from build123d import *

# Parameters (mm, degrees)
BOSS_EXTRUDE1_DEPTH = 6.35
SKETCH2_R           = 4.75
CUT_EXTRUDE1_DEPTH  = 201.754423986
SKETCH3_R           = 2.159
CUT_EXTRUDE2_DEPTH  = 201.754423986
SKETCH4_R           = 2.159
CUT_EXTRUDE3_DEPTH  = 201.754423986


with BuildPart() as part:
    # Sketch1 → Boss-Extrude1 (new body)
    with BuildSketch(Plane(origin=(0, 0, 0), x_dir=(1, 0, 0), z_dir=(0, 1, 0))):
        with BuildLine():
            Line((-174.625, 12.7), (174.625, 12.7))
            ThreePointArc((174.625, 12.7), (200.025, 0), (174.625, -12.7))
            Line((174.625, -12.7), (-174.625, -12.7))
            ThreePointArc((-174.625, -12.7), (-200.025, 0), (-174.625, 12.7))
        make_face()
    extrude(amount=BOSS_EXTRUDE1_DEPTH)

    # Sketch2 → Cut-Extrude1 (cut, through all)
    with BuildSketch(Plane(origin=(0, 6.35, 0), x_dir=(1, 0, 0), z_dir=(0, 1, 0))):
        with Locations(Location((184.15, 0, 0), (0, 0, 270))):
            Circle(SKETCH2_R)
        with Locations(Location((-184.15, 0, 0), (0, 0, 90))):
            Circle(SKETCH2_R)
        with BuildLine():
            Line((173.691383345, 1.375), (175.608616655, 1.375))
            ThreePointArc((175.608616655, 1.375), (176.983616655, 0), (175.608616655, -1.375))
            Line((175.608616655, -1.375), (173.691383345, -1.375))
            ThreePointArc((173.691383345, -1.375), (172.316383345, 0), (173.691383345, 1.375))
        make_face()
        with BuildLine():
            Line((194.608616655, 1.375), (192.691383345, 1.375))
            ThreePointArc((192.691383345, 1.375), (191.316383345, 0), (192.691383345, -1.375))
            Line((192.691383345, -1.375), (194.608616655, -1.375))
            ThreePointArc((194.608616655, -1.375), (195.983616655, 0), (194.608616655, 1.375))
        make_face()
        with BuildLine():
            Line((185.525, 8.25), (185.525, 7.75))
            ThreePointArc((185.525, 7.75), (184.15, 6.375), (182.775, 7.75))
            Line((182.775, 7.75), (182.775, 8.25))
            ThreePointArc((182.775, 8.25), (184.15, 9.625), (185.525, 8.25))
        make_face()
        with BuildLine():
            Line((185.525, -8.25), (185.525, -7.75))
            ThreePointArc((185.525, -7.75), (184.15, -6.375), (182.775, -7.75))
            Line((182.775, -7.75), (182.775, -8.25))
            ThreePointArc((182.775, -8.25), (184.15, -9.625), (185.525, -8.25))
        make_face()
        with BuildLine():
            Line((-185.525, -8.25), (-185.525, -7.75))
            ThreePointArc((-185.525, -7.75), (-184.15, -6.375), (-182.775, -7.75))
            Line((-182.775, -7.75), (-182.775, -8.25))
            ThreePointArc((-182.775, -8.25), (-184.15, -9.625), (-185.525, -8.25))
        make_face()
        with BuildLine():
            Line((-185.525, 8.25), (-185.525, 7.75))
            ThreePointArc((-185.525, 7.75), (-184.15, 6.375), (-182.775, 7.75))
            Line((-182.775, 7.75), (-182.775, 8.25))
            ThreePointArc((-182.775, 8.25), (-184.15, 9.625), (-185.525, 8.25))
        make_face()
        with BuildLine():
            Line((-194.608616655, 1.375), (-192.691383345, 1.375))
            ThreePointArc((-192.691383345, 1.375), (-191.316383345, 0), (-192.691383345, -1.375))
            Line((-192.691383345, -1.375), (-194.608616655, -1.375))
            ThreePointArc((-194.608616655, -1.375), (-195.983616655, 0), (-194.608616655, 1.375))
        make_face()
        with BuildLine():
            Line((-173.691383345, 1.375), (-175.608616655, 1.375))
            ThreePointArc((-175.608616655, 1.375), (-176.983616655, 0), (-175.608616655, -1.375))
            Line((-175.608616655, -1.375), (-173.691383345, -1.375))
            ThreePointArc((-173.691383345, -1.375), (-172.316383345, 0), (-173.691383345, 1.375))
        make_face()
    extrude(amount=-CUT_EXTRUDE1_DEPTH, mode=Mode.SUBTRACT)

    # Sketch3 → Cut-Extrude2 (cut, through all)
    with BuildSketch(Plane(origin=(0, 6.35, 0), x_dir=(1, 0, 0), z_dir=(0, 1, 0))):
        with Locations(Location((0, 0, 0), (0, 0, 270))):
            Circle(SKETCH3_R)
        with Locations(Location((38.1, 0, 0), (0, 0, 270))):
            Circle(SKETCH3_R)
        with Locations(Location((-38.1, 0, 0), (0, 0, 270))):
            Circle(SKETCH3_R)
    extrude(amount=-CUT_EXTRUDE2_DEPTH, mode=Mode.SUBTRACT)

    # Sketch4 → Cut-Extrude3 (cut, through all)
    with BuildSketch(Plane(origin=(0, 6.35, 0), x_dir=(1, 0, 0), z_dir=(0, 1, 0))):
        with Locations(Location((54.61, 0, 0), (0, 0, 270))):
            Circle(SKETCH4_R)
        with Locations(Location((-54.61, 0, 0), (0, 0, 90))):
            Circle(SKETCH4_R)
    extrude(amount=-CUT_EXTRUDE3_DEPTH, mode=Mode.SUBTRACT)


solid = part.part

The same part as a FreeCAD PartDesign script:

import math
import FreeCAD as App
import Part
import Sketcher
from FreeCAD import Vector
Q = App.Units.Quantity

doc = App.newDocument("Part")
params = doc.addObject("Spreadsheet::Sheet", "Params")
for row, (alias, value) in enumerate([
    ("sketch1_radius", "0.625 in"),
    ("sketch1_width", "13.75 in"),
    ("pad1_length", "0.25 in"),
    ("sketch3_diameter", "0.17 in"),
    ("sketch4_diameter", "0.17 in"),
], start=1):
    params.set(f"A{row}", alias)
    params.set(f"B{row}", "=" + value)
    params.setAlias(f"B{row}", alias)

body = doc.addObject("PartDesign::Body", "Body")

# Sketch on XZ plane
sketch1 = body.newObject("Sketcher::SketchObject", "Sketch")
sketch1.AttachmentSupport = (doc.getObject("XZ_Plane"), [""])
sketch1.MapMode = "FlatFace"
sketch1.addGeometry([
    Part.LineSegment(Vector(175, -13, 0), Vector(-175, -13, 0)),
    Part.ArcOfCircle(Part.Circle(Vector(-184, 0, 0), Vector(0, 0, 1), 16), math.radians(53), math.radians(307)),
    Part.LineSegment(Vector(-175, 13, 0), Vector(175, 13, 0)),
    Part.ArcOfCircle(Part.Circle(Vector(184, 0, 0), Vector(0, 0, 1), 16), math.radians(-127), math.radians(127)),
], False)
sketch1.addConstraint([
    Sketcher.Constraint("Coincident", 0, 2, 1, 2),
    Sketcher.Constraint("Coincident", 1, 1, 2, 1),
    Sketcher.Constraint("Coincident", 2, 2, 3, 2),
    Sketcher.Constraint("Coincident", 3, 1, 0, 1),
    Sketcher.Constraint("Horizontal", 0),
    Sketcher.Constraint("Horizontal", 2),
    Sketcher.Constraint("Equal", 1, 3),
    Sketcher.Constraint("Symmetric", 1, 3, 3, 3, -1, 1),
    Sketcher.Constraint("Symmetric", 0, 2, 1, 1, -1),
    Sketcher.Constraint("Radius", 1, Q("0.625 in")),
    Sketcher.Constraint("DistanceY", 0, 2, 1, 1, Q("1 in")),
    Sketcher.Constraint("DistanceX", 0, 2, 0, 1, Q("13.75 in")),
])
sketch1.setExpression("Constraints[9]", "Params.sketch1_radius")
sketch1.setExpression("Constraints[11]", "Params.sketch1_width")
pad1 = body.newObject("PartDesign::Pad", "Pad")
pad1.Profile = sketch1
pad1.setExpression("Length", "Params.pad1_length")
pad1.Reversed = True

# Sketch on XZ plane
sketch2 = body.newObject("Sketcher::SketchObject", "Sketch001")
sketch2.AttachmentSupport = (doc.getObject("XZ_Plane"), [""])
sketch2.MapMode = "FlatFace"
sketch2.AttachmentOffset = App.Placement(Vector(0, 0, -0.25 * 25.4), App.Rotation())
sketch2.addGeometry([
    Part.Circle(Vector(184.2, 0, 0), Vector(0, 0, 1), 4.8),  # 0
    Part.Circle(Vector(-184.2, 0, 0), Vector(0, 0, 1), 4.8),  # 1
    Part.LineSegment(Vector(175.6, -1.4, 0), Vector(173.7, -1.4, 0)),  # 2
    Part.ArcOfCircle(Part.Circle(Vector(173.7, 0, 0), Vector(0, 0, 1), 1.4), math.radians(90), math.radians(270)),  # 3
    Part.LineSegment(Vector(173.7, 1.4, 0), Vector(175.6, 1.4, 0)),  # 4
    Part.ArcOfCircle(Part.Circle(Vector(175.6, 0, 0), Vector(0, 0, 1), 1.4), math.radians(-90), math.radians(90)),  # 5
    Part.LineSegment(Vector(194.6, -1.4, 0), Vector(192.7, -1.4, 0)),  # 6
    Part.ArcOfCircle(Part.Circle(Vector(192.7, 0, 0), Vector(0, 0, 1), 1.4), math.radians(90), math.radians(270)),  # 7
    Part.LineSegment(Vector(192.7, 1.4, 0), Vector(194.6, 1.4, 0)),  # 8
    Part.ArcOfCircle(Part.Circle(Vector(194.6, 0, 0), Vector(0, 0, 1), 1.4), math.radians(-90), math.radians(90)),  # 9
    Part.LineSegment(Vector(185.5, -7.8, 0), Vector(185.5, -8.2, 0)),  # 10
    Part.ArcOfCircle(Part.Circle(Vector(184.2, -8.2, 0), Vector(0, 0, 1), 1.4), math.radians(180), math.radians(360)),  # 11
    Part.LineSegment(Vector(182.8, -8.2, 0), Vector(182.8, -7.8, 0)),  # 12
    Part.ArcOfCircle(Part.Circle(Vector(184.2, -7.8, 0), Vector(0, 0, 1), 1.4), math.radians(0), math.radians(180)),  # 13
    Part.LineSegment(Vector(185.5, 8.2, 0), Vector(185.5, 7.8, 0)),  # 14
    Part.ArcOfCircle(Part.Circle(Vector(184.2, 7.8, 0), Vector(0, 0, 1), 1.4), math.radians(180), math.radians(360)),  # 15
    Part.LineSegment(Vector(182.8, 7.8, 0), Vector(182.8, 8.2, 0)),  # 16
    Part.ArcOfCircle(Part.Circle(Vector(184.2, 8.2, 0), Vector(0, 0, 1), 1.4), math.radians(0), math.radians(180)),  # 17
    Part.LineSegment(Vector(-185.5, 7.8, 0), Vector(-185.5, 8.2, 0)),  # 18
    Part.ArcOfCircle(Part.Circle(Vector(-184.2, 8.2, 0), Vector(0, 0, 1), 1.4), math.radians(0), math.radians(180)),  # 19
    Part.LineSegment(Vector(-182.8, 8.2, 0), Vector(-182.8, 7.8, 0)),  # 20
    Part.ArcOfCircle(Part.Circle(Vector(-184.2, 7.8, 0), Vector(0, 0, 1), 1.4), math.radians(180), math.radians(360)),  # 21
    Part.LineSegment(Vector(-185.5, -8.2, 0), Vector(-185.5, -7.8, 0)),  # 22
    Part.ArcOfCircle(Part.Circle(Vector(-184.2, -7.8, 0), Vector(0, 0, 1), 1.4), math.radians(0), math.radians(180)),  # 23
    Part.LineSegment(Vector(-182.8, -7.8, 0), Vector(-182.8, -8.2, 0)),  # 24
    Part.ArcOfCircle(Part.Circle(Vector(-184.2, -8.2, 0), Vector(0, 0, 1), 1.4), math.radians(180), math.radians(360)),  # 25
    Part.LineSegment(Vector(-192.7, -1.4, 0), Vector(-194.6, -1.4, 0)),  # 26
    Part.ArcOfCircle(Part.Circle(Vector(-194.6, 0, 0), Vector(0, 0, 1), 1.4), math.radians(90), math.radians(270)),  # 27
    Part.LineSegment(Vector(-194.6, 1.4, 0), Vector(-192.7, 1.4, 0)),  # 28
    Part.ArcOfCircle(Part.Circle(Vector(-192.7, 0, 0), Vector(0, 0, 1), 1.4), math.radians(-90), math.radians(90)),  # 29
    Part.LineSegment(Vector(-173.7, -1.4, 0), Vector(-175.6, -1.4, 0)),  # 30
    Part.ArcOfCircle(Part.Circle(Vector(-175.6, 0, 0), Vector(0, 0, 1), 1.4), math.radians(90), math.radians(270)),  # 31
    Part.LineSegment(Vector(-175.6, 1.4, 0), Vector(-173.7, 1.4, 0)),  # 32
    Part.ArcOfCircle(Part.Circle(Vector(-173.7, 0, 0), Vector(0, 0, 1), 1.4), math.radians(-90), math.radians(90)),  # 33
], False)
sketch2.addConstraint([
    Sketcher.Constraint("Tangent", 2, 2, 3, 2),
    Sketcher.Constraint("Tangent", 3, 1, 4, 1),
    Sketcher.Constraint("Tangent", 4, 2, 5, 2),
    Sketcher.Constraint("Tangent", 5, 1, 2, 1),
    Sketcher.Constraint("Tangent", 6, 2, 7, 2),
    Sketcher.Constraint("Tangent", 7, 1, 8, 1),
    Sketcher.Constraint("Tangent", 8, 2, 9, 2),
    Sketcher.Constraint("Tangent", 9, 1, 6, 1),
    Sketcher.Constraint("Tangent", 10, 2, 11, 2),
    Sketcher.Constraint("Tangent", 11, 1, 12, 1),
    Sketcher.Constraint("Tangent", 12, 2, 13, 2),
    Sketcher.Constraint("Tangent", 13, 1, 10, 1),
    Sketcher.Constraint("Tangent", 14, 2, 15, 2),
    Sketcher.Constraint("Tangent", 15, 1, 16, 1),
    Sketcher.Constraint("Tangent", 16, 2, 17, 2),
    Sketcher.Constraint("Tangent", 17, 1, 14, 1),
    Sketcher.Constraint("Tangent", 18, 2, 19, 2),
    Sketcher.Constraint("Tangent", 19, 1, 20, 1),
    Sketcher.Constraint("Tangent", 20, 2, 21, 2),
    Sketcher.Constraint("Tangent", 21, 1, 18, 1),
    Sketcher.Constraint("Tangent", 22, 2, 23, 2),
    Sketcher.Constraint("Tangent", 23, 1, 24, 1),
    Sketcher.Constraint("Tangent", 24, 2, 25, 2),
    Sketcher.Constraint("Tangent", 25, 1, 22, 1),
    Sketcher.Constraint("Tangent", 26, 2, 27, 2),
    Sketcher.Constraint("Tangent", 27, 1, 28, 1),
    Sketcher.Constraint("Tangent", 28, 2, 29, 2),
    Sketcher.Constraint("Tangent", 29, 1, 26, 1),
    Sketcher.Constraint("Tangent", 30, 2, 31, 2),
    Sketcher.Constraint("Tangent", 31, 1, 32, 1),
    Sketcher.Constraint("Tangent", 32, 2, 33, 2),
    Sketcher.Constraint("Tangent", 33, 1, 30, 1),
    Sketcher.Constraint("Horizontal", 2),
    Sketcher.Constraint("Horizontal", 4),
    Sketcher.Constraint("Horizontal", 6),
    Sketcher.Constraint("Horizontal", 8),
    Sketcher.Constraint("Vertical", 10),
    Sketcher.Constraint("Vertical", 12),
    Sketcher.Constraint("Vertical", 14),
    Sketcher.Constraint("Vertical", 16),
    Sketcher.Constraint("Vertical", 18),
    Sketcher.Constraint("Vertical", 20),
    Sketcher.Constraint("Vertical", 22),
    Sketcher.Constraint("Vertical", 24),
    Sketcher.Constraint("Horizontal", 26),
    Sketcher.Constraint("Horizontal", 28),
    Sketcher.Constraint("Horizontal", 30),
    Sketcher.Constraint("Horizontal", 32),
    Sketcher.Constraint("Equal", 0, 1),
    Sketcher.Constraint("Equal", 5, 7),
    Sketcher.Constraint("Equal", 9, 11),
    Sketcher.Constraint("Equal", 13, 15),
    Sketcher.Constraint("Equal", 17, 19),
    Sketcher.Constraint("Equal", 21, 23),
    Sketcher.Constraint("Equal", 25, 27),
    Sketcher.Constraint("Equal", 29, 31),
    Sketcher.Constraint("Symmetric", 0, 3, 1, 3, -1, 1),
    Sketcher.Constraint("Symmetric", 11, 3, 19, 3, -1, 1),
    Sketcher.Constraint("Symmetric", 15, 3, 23, 3, -1, 1),
    Sketcher.Constraint("Symmetric", 9, 3, 27, 3, -1, 1),
    Sketcher.Constraint("Symmetric", 5, 3, 31, 3, -1, 1),
    Sketcher.Constraint("Symmetric", 17, 3, 19, 3, -2),
    Sketcher.Constraint("Symmetric", 7, 3, 29, 3, -2),
    Sketcher.Constraint("Symmetric", 3, 3, 33, 3, -2),
    Sketcher.Constraint("PointOnObject", 0, 3, -1),
    Sketcher.Constraint("Horizontal", 15, 3, 21, 3),
    Sketcher.Constraint("Horizontal", 13, 3, 23, 3),
    Sketcher.Constraint("Horizontal", 11, 3, 25, 3),
    Sketcher.Constraint("Vertical", 0, 3, 11, 3),
    Sketcher.Constraint("Equal", 4, 6),
    Sketcher.Constraint("DistanceX", 1, 3, 0, 3, Q("14.5 in")),
    Sketcher.Constraint("Diameter", 0, Q("9.5 mm")),
    Sketcher.Constraint("Radius", 3, Q("1.375 mm")),
    Sketcher.Constraint("DistanceY", 10, 2, 10, 1, Q("0.5 mm")),
    Sketcher.Constraint("DistanceY", 11, 3, -1, 1, Q("8.25 mm")),
    Sketcher.Constraint("DistanceX", 3, 3, 7, 3, Q("19 mm")),
    Sketcher.Constraint("DistanceX", 2, 2, 2, 1, Q("1.917233 mm")),
    Sketcher.Constraint("DistanceX", -1, 1, 3, 3, Q("173.691383 mm")),
])
pocket1 = body.newObject("PartDesign::Pocket", "Pocket")
pocket1.Profile = sketch2
pocket1.Type = "ThroughAll"
pocket1.Reversed = True

# Sketch on XZ plane
sketch3 = body.newObject("Sketcher::SketchObject", "Sketch002")
sketch3.AttachmentSupport = (doc.getObject("XZ_Plane"), [""])
sketch3.MapMode = "FlatFace"
sketch3.AttachmentOffset = App.Placement(Vector(0, 0, -0.25 * 25.4), App.Rotation())
sketch3.addGeometry([
    Part.Circle(Vector(0, 0, 0), Vector(0, 0, 1), 2.2),
    Part.Circle(Vector(38.1, 0, 0), Vector(0, 0, 1), 2.2),
    Part.Circle(Vector(-38.1, 0, 0), Vector(0, 0, 1), 2.2),
], False)
sketch3.addConstraint([
    Sketcher.Constraint("Coincident", 0, 3, -1, 1),
    Sketcher.Constraint("Equal", 0, 1),
    Sketcher.Constraint("Equal", 1, 2),
    Sketcher.Constraint("Symmetric", 1, 3, 2, 3, -1, 1),
    Sketcher.Constraint("PointOnObject", 1, 3, -1),
    Sketcher.Constraint("Diameter", 0, Q("0.17 in")),
    Sketcher.Constraint("DistanceX", 2, 3, 1, 3, Q("3 in")),
])
sketch3.setExpression("Constraints[5]", "Params.sketch3_diameter")
pocket2 = body.newObject("PartDesign::Pocket", "Pocket001")
pocket2.Profile = sketch3
pocket2.Type = "ThroughAll"
pocket2.Reversed = True

# Sketch on XZ plane
sketch4 = body.newObject("Sketcher::SketchObject", "Sketch003")
sketch4.AttachmentSupport = (doc.getObject("XZ_Plane"), [""])
sketch4.MapMode = "FlatFace"
sketch4.AttachmentOffset = App.Placement(Vector(0, 0, -0.25 * 25.4), App.Rotation())
sketch4.addGeometry([
    Part.Circle(Vector(54.6, 0, 0), Vector(0, 0, 1), 2.2),
    Part.Circle(Vector(-54.6, 0, 0), Vector(0, 0, 1), 2.2),
], False)
sketch4.addConstraint([
    Sketcher.Constraint("Equal", 0, 1),
    Sketcher.Constraint("Symmetric", 0, 3, 1, 3, -1, 1),
    Sketcher.Constraint("PointOnObject", 0, 3, -1),
    Sketcher.Constraint("Diameter", 0, Q("0.17 in")),
    Sketcher.Constraint("DistanceX", 1, 3, 0, 3, Q("4.3 in")),
])
sketch4.setExpression("Constraints[3]", "Params.sketch4_diameter")
pocket3 = body.newObject("PartDesign::Pocket", "Pocket002")
pocket3.Profile = sketch4
pocket3.Type = "ThroughAll"
pocket3.Reversed = True

doc.recompute()
